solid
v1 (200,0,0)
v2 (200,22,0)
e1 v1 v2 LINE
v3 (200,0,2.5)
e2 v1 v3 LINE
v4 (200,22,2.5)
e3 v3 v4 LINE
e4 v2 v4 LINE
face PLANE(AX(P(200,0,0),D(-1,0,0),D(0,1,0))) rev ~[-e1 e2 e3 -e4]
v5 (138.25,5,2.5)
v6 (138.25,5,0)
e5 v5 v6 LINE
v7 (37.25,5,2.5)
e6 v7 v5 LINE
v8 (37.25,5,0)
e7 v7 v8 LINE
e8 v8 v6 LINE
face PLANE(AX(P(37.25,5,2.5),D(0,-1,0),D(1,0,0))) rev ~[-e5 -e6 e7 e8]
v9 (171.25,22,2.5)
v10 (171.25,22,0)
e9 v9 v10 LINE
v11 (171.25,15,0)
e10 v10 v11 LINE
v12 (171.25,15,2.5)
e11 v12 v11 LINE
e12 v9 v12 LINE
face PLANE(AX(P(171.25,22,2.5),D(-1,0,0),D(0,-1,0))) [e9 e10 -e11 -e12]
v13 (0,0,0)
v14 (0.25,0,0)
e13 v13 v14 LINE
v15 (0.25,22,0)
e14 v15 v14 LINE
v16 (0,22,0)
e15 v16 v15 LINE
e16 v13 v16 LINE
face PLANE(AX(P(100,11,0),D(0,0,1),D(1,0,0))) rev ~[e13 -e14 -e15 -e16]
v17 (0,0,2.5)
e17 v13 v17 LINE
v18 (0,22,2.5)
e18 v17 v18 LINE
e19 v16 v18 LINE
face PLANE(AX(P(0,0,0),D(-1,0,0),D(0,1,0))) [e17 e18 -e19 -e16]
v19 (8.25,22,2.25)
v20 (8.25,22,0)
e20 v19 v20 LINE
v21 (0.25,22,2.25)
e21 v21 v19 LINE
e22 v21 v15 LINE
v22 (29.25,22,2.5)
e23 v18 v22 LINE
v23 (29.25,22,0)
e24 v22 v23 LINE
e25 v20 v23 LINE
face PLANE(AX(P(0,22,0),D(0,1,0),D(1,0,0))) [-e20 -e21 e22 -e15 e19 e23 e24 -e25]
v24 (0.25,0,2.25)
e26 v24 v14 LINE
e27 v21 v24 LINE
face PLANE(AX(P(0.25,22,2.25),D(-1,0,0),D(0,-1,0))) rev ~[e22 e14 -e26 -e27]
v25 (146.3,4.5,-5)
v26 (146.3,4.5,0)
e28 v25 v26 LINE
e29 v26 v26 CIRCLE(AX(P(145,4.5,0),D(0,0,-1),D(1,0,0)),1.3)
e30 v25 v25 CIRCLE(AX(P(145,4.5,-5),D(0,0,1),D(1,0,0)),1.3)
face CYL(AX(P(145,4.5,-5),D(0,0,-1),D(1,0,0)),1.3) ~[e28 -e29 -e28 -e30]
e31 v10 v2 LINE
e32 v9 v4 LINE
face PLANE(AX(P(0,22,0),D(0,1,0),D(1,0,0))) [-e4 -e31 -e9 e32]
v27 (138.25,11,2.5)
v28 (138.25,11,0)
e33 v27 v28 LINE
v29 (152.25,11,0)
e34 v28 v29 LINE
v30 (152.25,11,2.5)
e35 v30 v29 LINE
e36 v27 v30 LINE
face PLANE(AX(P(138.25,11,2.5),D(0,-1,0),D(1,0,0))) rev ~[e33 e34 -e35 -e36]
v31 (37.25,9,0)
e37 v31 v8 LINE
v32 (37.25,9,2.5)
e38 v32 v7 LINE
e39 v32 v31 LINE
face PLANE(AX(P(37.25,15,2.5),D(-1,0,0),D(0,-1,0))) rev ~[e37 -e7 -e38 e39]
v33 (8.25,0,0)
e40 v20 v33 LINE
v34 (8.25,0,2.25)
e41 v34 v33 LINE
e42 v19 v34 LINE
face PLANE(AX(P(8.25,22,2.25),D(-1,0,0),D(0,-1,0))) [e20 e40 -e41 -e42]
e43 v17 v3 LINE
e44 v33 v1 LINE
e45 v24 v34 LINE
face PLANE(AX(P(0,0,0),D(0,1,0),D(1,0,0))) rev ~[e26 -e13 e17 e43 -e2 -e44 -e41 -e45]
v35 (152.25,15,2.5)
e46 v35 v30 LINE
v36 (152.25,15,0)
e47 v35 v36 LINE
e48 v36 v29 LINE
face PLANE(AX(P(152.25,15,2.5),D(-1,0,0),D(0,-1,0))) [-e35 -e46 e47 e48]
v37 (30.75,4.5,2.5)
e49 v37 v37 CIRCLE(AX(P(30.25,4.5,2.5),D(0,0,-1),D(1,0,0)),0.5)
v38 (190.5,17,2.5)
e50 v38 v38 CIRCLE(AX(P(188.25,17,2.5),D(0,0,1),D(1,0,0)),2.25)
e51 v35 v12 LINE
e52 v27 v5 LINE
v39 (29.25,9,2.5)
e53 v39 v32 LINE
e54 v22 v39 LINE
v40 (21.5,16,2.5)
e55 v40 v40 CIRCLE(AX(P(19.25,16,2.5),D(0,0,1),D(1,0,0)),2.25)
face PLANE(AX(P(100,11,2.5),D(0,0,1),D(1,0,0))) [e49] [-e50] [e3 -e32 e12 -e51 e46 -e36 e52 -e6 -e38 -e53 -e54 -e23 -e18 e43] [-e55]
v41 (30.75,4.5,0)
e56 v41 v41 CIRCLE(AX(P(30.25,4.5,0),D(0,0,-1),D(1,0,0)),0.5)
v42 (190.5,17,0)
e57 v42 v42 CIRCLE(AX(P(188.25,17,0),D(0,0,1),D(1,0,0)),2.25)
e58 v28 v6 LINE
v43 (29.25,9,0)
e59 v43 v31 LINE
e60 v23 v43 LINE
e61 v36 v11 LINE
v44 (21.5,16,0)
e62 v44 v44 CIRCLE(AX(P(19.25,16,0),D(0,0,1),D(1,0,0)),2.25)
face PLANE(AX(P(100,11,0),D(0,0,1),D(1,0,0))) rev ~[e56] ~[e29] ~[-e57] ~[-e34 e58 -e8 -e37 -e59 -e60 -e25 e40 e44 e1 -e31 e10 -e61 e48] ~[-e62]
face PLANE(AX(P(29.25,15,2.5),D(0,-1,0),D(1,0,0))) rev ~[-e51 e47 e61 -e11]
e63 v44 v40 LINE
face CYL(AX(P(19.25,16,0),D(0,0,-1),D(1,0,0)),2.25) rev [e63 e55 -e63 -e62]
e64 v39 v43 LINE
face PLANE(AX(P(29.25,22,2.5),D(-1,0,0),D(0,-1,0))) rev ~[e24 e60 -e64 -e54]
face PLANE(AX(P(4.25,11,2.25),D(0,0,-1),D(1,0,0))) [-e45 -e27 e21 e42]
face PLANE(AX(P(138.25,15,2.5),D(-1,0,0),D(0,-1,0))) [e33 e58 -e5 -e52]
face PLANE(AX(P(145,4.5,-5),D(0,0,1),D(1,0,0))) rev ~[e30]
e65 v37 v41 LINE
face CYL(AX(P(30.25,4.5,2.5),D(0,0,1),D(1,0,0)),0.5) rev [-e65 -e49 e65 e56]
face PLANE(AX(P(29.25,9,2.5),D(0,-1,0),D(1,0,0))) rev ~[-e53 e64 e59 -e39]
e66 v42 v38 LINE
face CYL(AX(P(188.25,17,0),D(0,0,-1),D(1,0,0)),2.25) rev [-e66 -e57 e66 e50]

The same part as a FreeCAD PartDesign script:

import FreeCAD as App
import Part
import Sketcher
from FreeCAD import Vector


def add_polygon(sketch, points):
    """Adds a closed chain of lines whose ends are joined by coincident constraints."""
    first, n = sketch.GeometryCount, len(points)
    for a, b in zip(points, points[1:] + points[:1]):
        sketch.addGeometry(Part.LineSegment(App.Vector(*a, 0), App.Vector(*b, 0)), False)
    for i in range(n):
        sketch.addConstraint(Sketcher.Constraint("Coincident", first + i, 2, first + (i + 1) % n, 1))

doc = App.newDocument("Part")
params = doc.addObject("Spreadsheet::Sheet", "Params")
for row, (alias, value) in enumerate([
    ("sketch1_width", "200 mm"),
    ("sketch1_height", "22 mm"),
    ("pad1_length", "2.5 mm"),
    ("sketch2_diameter", "4.5 mm"),
    ("pocket1_length", "2.5 mm"),
    ("sketch3_diameter", "4.5 mm"),
    ("pocket2_length", "2.5 mm"),
    ("sketch4_diameter", "2.6 mm"),
    ("pad2_length", "6 mm"),
    ("sketch5_diameter", "1 mm"),
    ("pocket3_length", "2.5 mm"),
    ("sketch6_width", "8 mm"),
    ("sketch6_height", "22 mm"),
    ("pocket4_length", "10 mm"),
    ("sketch7_width", "101 mm"),
    ("sketch7_height", "10 mm"),
    ("pocket5_length", "2.5 mm"),
    ("sketch8_width", "142 mm"),
    ("sketch8_height", "7 mm"),
    ("pocket6_length", "2.5 mm"),
    ("sketch9_width", "8 mm"),
    ("sketch9_height", "6 mm"),
    ("pocket7_length", "10 mm"),
    ("sketch10_width", "14 mm"),
    ("sketch10_height", "4 mm"),
    ("pocket8_length", "2.5 mm"),
], start=1):
    params.set(f"A{row}", alias)
    params.set(f"B{row}", "=" + value)
    params.setAlias(f"B{row}", alias)

body = doc.addObject("PartDesign::Body", "Body")

# Sketch on XY plane
sketch1 = doc.addObject("Sketcher::SketchObject", "Sketch")
body.addObject(sketch1)
sketch1.AttachmentSupport = (doc.XY_Plane, [""])
sketch1.MapMode = "FlatFace"
add_polygon(sketch1, [(0, 22), (0, 0), (200, 0), (200, 22)])  # lines 0-3
sketch1.addConstraint(Sketcher.Constraint("Vertical", 0))
sketch1.addConstraint(Sketcher.Constraint("Horizontal", 1))
sketch1.addConstraint(Sketcher.Constraint("Vertical", 2))
sketch1.addConstraint(Sketcher.Constraint("Horizontal", 3))
sketch1.addConstraint(Sketcher.Constraint("Coincident", 0, 2, -1, 1))
sketch1.addConstraint(Sketcher.Constraint("DistanceX", 1, 1, 1, 2, 200.0))
sketch1.addConstraint(Sketcher.Constraint("DistanceY", 0, 2, 0, 1, 22.0))
sketch1.setExpression("Constraints[9]", "Params.sketch1_width")
sketch1.setExpression("Constraints[10]", "Params.sketch1_height")
pad1 = doc.addObject("PartDesign::Pad", "Pad")
body.addObject(pad1)
pad1.Profile = sketch1
pad1.setExpression("Length", "Params.pad1_length")

# Sketch on XY plane
sketch2 = doc.addObject("Sketcher::SketchObject", "Sketch001")
body.addObject(sketch2)
sketch2.AttachmentSupport = (doc.XY_Plane, [""])
sketch2.MapMode = "FlatFace"
sketch2.addGeometry(Part.Circle(Vector(19.2, 16, 0), Vector(0, 0, 1), 2.2), False)
sketch2.addConstraint(Sketcher.Constraint("Diameter", 0, 4.5))
sketch2.addConstraint(Sketcher.Constraint("DistanceY", -1, 1, 0, 3, 16.0))
sketch2.addConstraint(Sketcher.Constraint("DistanceX", -1, 1, 0, 3, 19.25))
sketch2.setExpression("Constraints[0]", "Params.sketch2_diameter")
pocket1 = doc.addObject("PartDesign::Pocket", "Pocket")
body.addObject(pocket1)
pocket1.Profile = sketch2
pocket1.setExpression("Length", "Params.pocket1_length")
pocket1.Reversed = True

# Sketch on XY plane
sketch3 = doc.addObject("Sketcher::SketchObject", "Sketch002")
body.addObject(sketch3)
sketch3.AttachmentSupport = (doc.XY_Plane, [""])
sketch3.MapMode = "FlatFace"
sketch3.addGeometry(Part.Circle(Vector(188.2, 17, 0), Vector(0, 0, 1), 2.2), False)
sketch3.addConstraint(Sketcher.Constraint("Diameter", 0, 4.5))
sketch3.addConstraint(Sketcher.Constraint("DistanceY", -1, 1, 0, 3, 17.0))
sketch3.addConstraint(Sketcher.Constraint("DistanceX", -1, 1, 0, 3, 188.25))
sketch3.setExpression("Constraints[0]", "Params.sketch3_diameter")
pocket2 = doc.addObject("PartDesign::Pocket", "Pocket001")
body.addObject(pocket2)
pocket2.Profile = sketch3
pocket2.setExpression("Length", "Params.pocket2_length")
pocket2.Reversed = True

# Sketch on XY plane
sketch4 = doc.addObject("Sketcher::SketchObject", "Sketch003")
body.addObject(sketch4)
sketch4.AttachmentSupport = (doc.XY_Plane, [""])
sketch4.MapMode = "FlatFace"
sketch4.AttachmentOffset = App.Placement(Vector(0, 0, -5), App.Rotation())
sketch4.addGeometry(Part.Circle(Vector(145, 4.5, 0), Vector(0, 0, 1), 1.3), False)
sketch4.addConstraint(Sketcher.Constraint("Diameter", 0, 2.6))
sketch4.addConstraint(Sketcher.Constraint("DistanceX", -1, 1, 0, 3, 145.0))
sketch4.addConstraint(Sketcher.Constraint("DistanceY", -1, 1, 0, 3, 4.5))
sketch4.setExpression("Constraints[0]", "Params.sketch4_diameter")
pad2 = doc.addObject("PartDesign::Pad", "Pad001")
body.addObject(pad2)
pad2.Profile = sketch4
pad2.setExpression("Length", "Params.pad2_length")

# Sketch on XY plane
sketch5 = doc.addObject("Sketcher::SketchObject", "Sketch004")
body.addObject(sketch5)
sketch5.AttachmentSupport = (doc.XY_Plane, [""])
sketch5.MapMode = "FlatFace"
sketch5.AttachmentOffset = App.Placement(Vector(0, 0, 2.5), App.Rotation())
sketch5.addGeometry(Part.Circle(Vector(30.2, 4.5, 0), Vector(0, 0, 1), 0.5), False)
sketch5.addConstraint(Sketcher.Constraint("Diameter", 0, 1.0))
sketch5.addConstraint(Sketcher.Constraint("DistanceY", -1, 1, 0, 3, 4.5))
sketch5.addConstraint(Sketcher.Constraint("DistanceX", -1, 1, 0, 3, 30.25))
sketch5.setExpression("Constraints[0]", "Params.sketch5_diameter")
pocket3 = doc.addObject("PartDesign::Pocket", "Pocket002")
body.addObject(pocket3)
pocket3.Profile = sketch5
pocket3.setExpression("Length", "Params.pocket3_length")

# Sketch on XY plane
sketch6 = doc.addObject("Sketcher::SketchObject", "Sketch005")
body.addObject(sketch6)
sketch6.AttachmentSupport = (doc.XY_Plane, [""])
sketch6.MapMode = "FlatFace"
sketch6.AttachmentOffset = App.Placement(Vector(0, 0, 2.25), App.Rotation())
add_polygon(sketch6, [(0, 0), (0, 22), (8, 22), (8, 0)])  # lines 0-3
sketch6.addConstraint(Sketcher.Constraint("Vertical", 0))
sketch6.addConstraint(Sketcher.Constraint("Horizontal", 1))
sketch6.addConstraint(Sketcher.Constraint("Vertical", 2))
sketch6.addConstraint(Sketcher.Constraint("Horizontal", 3))
sketch6.addConstraint(Sketcher.Constraint("PointOnObject", 2, 2, -1))
sketch6.addConstraint(Sketcher.Constraint("DistanceX", 1, 1, 1, 2, 8.0))
sketch6.addConstraint(Sketcher.Constraint("DistanceY", 0, 1, 0, 2, 22.0))
sketch6.addConstraint(Sketcher.Constraint("DistanceX", -1, 1, 0, 2, 0.25))
sketch6.setExpression("Constraints[9]", "Params.sketch6_width")
sketch6.setExpression("Constraints[10]", "Params.sketch6_height")
pocket4 = doc.addObject("PartDesign::Pocket", "Pocket003")
body.addObject(pocket4)
pocket4.Profile = sketch6
pocket4.setExpression("Length", "Params.pocket4_length")

# Sketch on XY plane
sketch7 = doc.addObject("Sketcher::SketchObject", "Sketch006")
body.addObject(sketch7)
sketch7.AttachmentSupport = (doc.XY_Plane, [""])
sketch7.MapMode = "FlatFace"
sketch7.AttachmentOffset = App.Placement(Vector(0, 0, 2.5), App.Rotation())
add_polygon(sketch7, [(37, 5), (37, 15), (138, 15), (138, 5)])  # lines 0-3
sketch7.addConstraint(Sketcher.Constraint("Vertical", 0))
sketch7.addConstraint(Sketcher.Constraint("Horizontal", 1))
sketch7.addConstraint(Sketcher.Constraint("Vertical", 2))
sketch7.addConstraint(Sketcher.Constraint("Horizontal", 3))
sketch7.addConstraint(Sketcher.Constraint("DistanceX", 1, 1, 1, 2, 101.0))
sketch7.addConstraint(Sketcher.Constraint("DistanceY", 0, 1, 0, 2, 10.0))
sketch7.addConstraint(Sketcher.Constraint("DistanceY", -1, 1, 0, 2, 15.0))
sketch7.addConstraint(Sketcher.Constraint("DistanceX", -1, 1, 0, 2, 37.25))
sketch7.setExpression("Constraints[8]", "Params.sketch7_width")
sketch7.setExpression("Constraints[9]", "Params.sketch7_height")
pocket5 = doc.addObject("PartDesign::Pocket", "Pocket004")
body.addObject(pocket5)
pocket5.Profile = sketch7
pocket5.setExpression("Length", "Params.pocket5_length")

# Sketch on XY plane
sketch8 = doc.addObject("Sketcher::SketchObject", "Sketch007")
body.addObject(sketch8)
sketch8.AttachmentSupport = (doc.XY_Plane, [""])
sketch8.MapMode = "FlatFace"
sketch8.AttachmentOffset = App.Placement(Vector(0, 0, 2.5), App.Rotation())
add_polygon(sketch8, [(29, 15), (29, 22), (171, 22), (171, 15)])  # lines 0-3
sketch8.addConstraint(Sketcher.Constraint("Vertical", 0))
sketch8.addConstraint(Sketcher.Constraint("Horizontal", 1))
sketch8.addConstraint(Sketcher.Constraint("Vertical", 2))
sketch8.addConstraint(Sketcher.Constraint("Horizontal", 3))
sketch8.addConstraint(Sketcher.Constraint("DistanceX", 1, 1, 1, 2, 142.0))
sketch8.addConstraint(Sketcher.Constraint("DistanceY", 0, 1, 0, 2, 7.0))
sketch8.addConstraint(Sketcher.Constraint("DistanceY", -1, 1, 0, 2, 22.0))
sketch8.addConstraint(Sketcher.Constraint("DistanceX", -1, 1, 0, 2, 29.25))
sketch8.setExpression("Constraints[8]", "Params.sketch8_width")
sketch8.setExpression("Constraints[9]", "Params.sketch8_height")
pocket6 = doc.addObject("PartDesign::Pocket", "Pocket005")
body.addObject(pocket6)
pocket6.Profile = sketch8
pocket6.setExpression("Length", "Params.pocket6_length")

# Sketch on XY plane
sketch9 = doc.addObject("Sketcher::SketchObject", "Sketch008")
body.addObject(sketch9)
sketch9.AttachmentSupport = (doc.XY_Plane, [""])
sketch9.MapMode = "FlatFace"
sketch9.AttachmentOffset = App.Placement(Vector(0, 0, 2.5), App.Rotation())
add_polygon(sketch9, [(29, 9), (29, 15), (37, 15), (37, 9)])  # lines 0-3
sketch9.addConstraint(Sketcher.Constraint("Vertical", 0))
sketch9.addConstraint(Sketcher.Constraint("Horizontal", 1))
sketch9.addConstraint(Sketcher.Constraint("Vertical", 2))
sketch9.addConstraint(Sketcher.Constraint("Horizontal", 3))
sketch9.addConstraint(Sketcher.Constraint("DistanceX", 1, 1, 1, 2, 8.0))
sketch9.addConstraint(Sketcher.Constraint("DistanceY", 0, 1, 0, 2, 6.0))
sketch9.addConstraint(Sketcher.Constraint("DistanceY", -1, 1, 0, 2, 15.0))
sketch9.addConstraint(Sketcher.Constraint("DistanceX", -1, 1, 0, 2, 29.25))
sketch9.setExpression("Constraints[8]", "Params.sketch9_width")
sketch9.setExpression("Constraints[9]", "Params.sketch9_height")
pocket7 = doc.addObject("PartDesign::Pocket", "Pocket006")
body.addObject(pocket7)
pocket7.Profile = sketch9
pocket7.setExpression("Length", "Params.pocket7_length")

# Sketch on XY plane
sketch10 = doc.addObject("Sketcher::SketchObject", "Sketch009")
body.addObject(sketch10)
sketch10.AttachmentSupport = (doc.XY_Plane, [""])
sketch10.MapMode = "FlatFace"
sketch10.AttachmentOffset = App.Placement(Vector(0, 0, 2.5), App.Rotation())
add_polygon(sketch10, [(138.2, 11), (138.2, 15), (152.2, 15), (152.2, 11)])  # lines 0-3
sketch10.addConstraint(Sketcher.Constraint("Vertical", 0))
sketch10.addConstraint(Sketcher.Constraint("Horizontal", 1))
sketch10.addConstraint(Sketcher.Constraint("Vertical", 2))
sketch10.addConstraint(Sketcher.Constraint("Horizontal", 3))
sketch10.addConstraint(Sketcher.Constraint("DistanceX", 1, 1, 1, 2, 14.0))
sketch10.addConstraint(Sketcher.Constraint("DistanceY", 0, 1, 0, 2, 4.0))
sketch10.addConstraint(Sketcher.Constraint("DistanceY", -1, 1, 0, 2, 15.0))
sketch10.addConstraint(Sketcher.Constraint("DistanceX", -1, 1, 0, 2, 138.25))
sketch10.setExpression("Constraints[8]", "Params.sketch10_width")
sketch10.setExpression("Constraints[9]", "Params.sketch10_height")
pocket8 = doc.addObject("PartDesign::Pocket", "Pocket007")
body.addObject(pocket8)
pocket8.Profile = sketch10
pocket8.setExpression("Length", "Params.pocket8_length")

doc.recompute()
